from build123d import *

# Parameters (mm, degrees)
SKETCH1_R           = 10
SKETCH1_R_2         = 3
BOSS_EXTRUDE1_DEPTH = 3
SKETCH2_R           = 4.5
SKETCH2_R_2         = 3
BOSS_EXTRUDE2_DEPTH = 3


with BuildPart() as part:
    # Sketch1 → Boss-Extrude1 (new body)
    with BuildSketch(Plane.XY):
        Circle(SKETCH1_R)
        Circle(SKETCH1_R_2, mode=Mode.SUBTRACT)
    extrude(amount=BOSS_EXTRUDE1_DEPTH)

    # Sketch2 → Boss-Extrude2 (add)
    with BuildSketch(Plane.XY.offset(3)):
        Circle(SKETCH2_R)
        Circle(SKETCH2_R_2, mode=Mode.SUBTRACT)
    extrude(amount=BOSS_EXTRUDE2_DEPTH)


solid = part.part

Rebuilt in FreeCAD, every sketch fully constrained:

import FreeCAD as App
import Part
import Sketcher

V = App.Vector

doc = App.newDocument("Part")
params = doc.addObject("Spreadsheet::Sheet", "Params")
for row, (alias, value) in enumerate([
    ("sketch1_diameter", "20 mm"),
    ("sketch1_diameter2", "6 mm"),
    ("pad1_length", "3 mm"),
    ("sketch2_diameter", "9 mm"),
    ("sketch2_diameter2", "6 mm"),
    ("pad2_length", "3 mm"),
], start=1):
    params.set(f"A{row}", alias)
    params.set(f"B{row}", "=" + value)
    params.setAlias(f"B{row}", alias)

body = doc.addObject("PartDesign::Body", "Body")

# Sketch on XY plane
sketch1 = body.newObject("Sketcher::SketchObject", "Sketch")
sketch1.AttachmentSupport = (doc.getObject("XY_Plane"), [""])
sketch1.MapMode = "FlatFace"
sketch1.addGeometry([
    Part.Circle(V(0, 0, 0), V(0, 0, 1), 10),
    Part.Circle(V(0, 0, 0), V(0, 0, 1), 3),
], False)
sketch1.addConstraint([
    Sketcher.Constraint("Coincident", 0, 3, -1, 1),
    Sketcher.Constraint("Coincident", 1, 3, -1, 1),
    Sketcher.Constraint("Diameter", 0, 20.0),
    Sketcher.Constraint("Diameter", 1, 6.0),
])
sketch1.setExpression("Constraints[2]", "Params.sketch1_diameter")
sketch1.setExpression("Constraints[3]", "Params.sketch1_diameter2")
pad1 = body.newObject("PartDesign::Pad", "Pad")
pad1.Profile = sketch1
pad1.setExpression("Length", "Params.pad1_length")

# Sketch on XY plane
sketch2 = body.newObject("Sketcher::SketchObject", "Sketch001")
sketch2.AttachmentSupport = (doc.getObject("XY_Plane"), [""])
sketch2.MapMode = "FlatFace"
sketch2.AttachmentOffset = App.Placement(V(0, 0, 3), App.Rotation())
sketch2.addGeometry([
    Part.Circle(V(0, 0, 0), V(0, 0, 1), 4.5),
    Part.Circle(V(0, 0, 0), V(0, 0, 1), 3),
], False)
sketch2.addConstraint([
    Sketcher.Constraint("Coincident", 0, 3, -1, 1),
    Sketcher.Constraint("Coincident", 1, 3, -1, 1),
    Sketcher.Constraint("Diameter", 0, 9.0),
    Sketcher.Constraint("Diameter", 1, 6.0),
])
sketch2.setExpression("Constraints[2]", "Params.sketch2_diameter")
sketch2.setExpression("Constraints[3]", "Params.sketch2_diameter2")
pad2 = body.newObject("PartDesign::Pad", "Pad001")
pad2.Profile = sketch2
pad2.setExpression("Length", "Params.pad2_length")

doc.recompute()
